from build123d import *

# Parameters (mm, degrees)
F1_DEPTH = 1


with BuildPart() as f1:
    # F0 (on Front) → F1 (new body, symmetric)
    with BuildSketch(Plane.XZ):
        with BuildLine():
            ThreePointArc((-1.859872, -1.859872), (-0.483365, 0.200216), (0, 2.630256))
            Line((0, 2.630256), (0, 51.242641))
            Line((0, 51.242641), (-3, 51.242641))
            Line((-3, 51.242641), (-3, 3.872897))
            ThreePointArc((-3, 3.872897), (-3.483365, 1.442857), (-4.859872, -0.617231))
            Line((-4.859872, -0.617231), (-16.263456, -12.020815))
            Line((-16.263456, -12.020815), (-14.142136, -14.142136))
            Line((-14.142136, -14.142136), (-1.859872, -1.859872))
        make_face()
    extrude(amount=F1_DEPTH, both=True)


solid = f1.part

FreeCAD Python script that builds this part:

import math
import FreeCAD as App
import Part
import Sketcher
from FreeCAD import Vector
Q = App.Units.Quantity

doc = App.newDocument("Part")
params = doc.addObject("Spreadsheet::Sheet", "Params")
for row, (alias, value) in enumerate([
    ("sketch1_width", "3 mm"),
    ("sketch1_radius", "6.349999 mm"),
    ("sketch1_length", "3 mm"),
    ("pad1_length", "2 mm"),
], start=1):
    params.set(f"A{row}", alias)
    params.set(f"B{row}", "=" + value)
    params.setAlias(f"B{row}", alias)

body = doc.addObject("PartDesign::Body", "Body")

sketch1 = doc.addObject("Sketcher::SketchObject", "Sketch")
body.addObject(sketch1)
sketch1.AttachmentSupport = (doc.XZ_Plane, [""])
sketch1.MapMode = "FlatFace"
sketch1.addGeometry(Part.ArcOfCircle(Part.Circle(Vector(-6.349999, 2.630256, 0), Vector(0, 0, 1), 6.349999), math.radians(-45.000005), math.radians(0.000003)), False)
sketch1.addGeometry(Part.LineSegment(Vector(0, 2.630256, 0), Vector(0, 51.242641, 0)), False)
sketch1.addGeometry(Part.LineSegment(Vector(0, 51.242641, 0), Vector(-3, 51.242641, 0)), False)
sketch1.addGeometry(Part.LineSegment(Vector(-3, 51.242641, 0), Vector(-3, 3.872897, 0)), False)
sketch1.addGeometry(Part.ArcOfCircle(Part.Circle(Vector(-9.349999, 3.872897, 0), Vector(0, 0, 1), 6.349999), math.radians(-45.000005), math.radians(0.000003)), False)
sketch1.addGeometry(Part.LineSegment(Vector(-4.859872, -0.617231, 0), Vector(-16.263456, -12.020815, 0)), False)
sketch1.addGeometry(Part.LineSegment(Vector(-16.263456, -12.020815, 0), Vector(-14.142136, -14.142136, 0)), False)
sketch1.addGeometry(Part.LineSegment(Vector(-14.142136, -14.142136, 0), Vector(-1.859872, -1.859872, 0)), False)
sketch1.addConstraint(Sketcher.Constraint("Tangent", 0, 2, 1, 1))
sketch1.addConstraint(Sketcher.Constraint("Coincident", 1, 2, 2, 1))
sketch1.addConstraint(Sketcher.Constraint("Coincident", 2, 2, 3, 1))
sketch1.addConstraint(Sketcher.Constraint("Tangent", 3, 2, 4, 2))
sketch1.addConstraint(Sketcher.Constraint("Tangent", 4, 1, 5, 1))
sketch1.addConstraint(Sketcher.Constraint("Coincident", 5, 2, 6, 1))
sketch1.addConstraint(Sketcher.Constraint("Coincident", 6, 2, 7, 1))
sketch1.addConstraint(Sketcher.Constraint("Tangent", 7, 2, 0, 1))
sketch1.addConstraint(Sketcher.Constraint("Vertical", 1))
sketch1.addConstraint(Sketcher.Constraint("Horizontal", 2))
sketch1.addConstraint(Sketcher.Constraint("Vertical", 3))
sketch1.addConstraint(Sketcher.Constraint("Equal", 0, 4))
sketch1.addConstraint(Sketcher.Constraint("PointOnObject", 0, 2, -2))
sketch1.addConstraint(Sketcher.Constraint("Perpendicular", 5, 6))
sketch1.addConstraint(Sketcher.Constraint("Perpendicular", 6, 7))
sketch1.addConstraint(Sketcher.Constraint("DistanceX", 2, 2, 2, 1, 3.0))
sketch1.addConstraint(Sketcher.Constraint("Angle", 5, Q("-135 deg")))
sketch1.addConstraint(Sketcher.Constraint("Radius", 0, 6.349999))
sketch1.addConstraint(Sketcher.Constraint("Distance", 6, 3.0))
sketch1.addConstraint(Sketcher.Constraint("DistanceY", 1, 1, 1, 2, 48.612385))
sketch1.addConstraint(Sketcher.Constraint("DistanceY", -1, 1, 1, 2, 51.242641))
sketch1.addConstraint(Sketcher.Constraint("DistanceY", 5, 2, 4, 3, 15.893712))
sketch1.setExpression("Constraints[15]", "Params.sketch1_width")
sketch1.setExpression("Constraints[17]", "Params.sketch1_radius")
sketch1.setExpression("Constraints[18]", "Params.sketch1_length")
pad1 = doc.addObject("PartDesign::Pad", "Pad")
body.addObject(pad1)
pad1.Profile = sketch1
pad1.setExpression("Length", "Params.pad1_length")
pad1.Midplane = True

doc.recompute()
